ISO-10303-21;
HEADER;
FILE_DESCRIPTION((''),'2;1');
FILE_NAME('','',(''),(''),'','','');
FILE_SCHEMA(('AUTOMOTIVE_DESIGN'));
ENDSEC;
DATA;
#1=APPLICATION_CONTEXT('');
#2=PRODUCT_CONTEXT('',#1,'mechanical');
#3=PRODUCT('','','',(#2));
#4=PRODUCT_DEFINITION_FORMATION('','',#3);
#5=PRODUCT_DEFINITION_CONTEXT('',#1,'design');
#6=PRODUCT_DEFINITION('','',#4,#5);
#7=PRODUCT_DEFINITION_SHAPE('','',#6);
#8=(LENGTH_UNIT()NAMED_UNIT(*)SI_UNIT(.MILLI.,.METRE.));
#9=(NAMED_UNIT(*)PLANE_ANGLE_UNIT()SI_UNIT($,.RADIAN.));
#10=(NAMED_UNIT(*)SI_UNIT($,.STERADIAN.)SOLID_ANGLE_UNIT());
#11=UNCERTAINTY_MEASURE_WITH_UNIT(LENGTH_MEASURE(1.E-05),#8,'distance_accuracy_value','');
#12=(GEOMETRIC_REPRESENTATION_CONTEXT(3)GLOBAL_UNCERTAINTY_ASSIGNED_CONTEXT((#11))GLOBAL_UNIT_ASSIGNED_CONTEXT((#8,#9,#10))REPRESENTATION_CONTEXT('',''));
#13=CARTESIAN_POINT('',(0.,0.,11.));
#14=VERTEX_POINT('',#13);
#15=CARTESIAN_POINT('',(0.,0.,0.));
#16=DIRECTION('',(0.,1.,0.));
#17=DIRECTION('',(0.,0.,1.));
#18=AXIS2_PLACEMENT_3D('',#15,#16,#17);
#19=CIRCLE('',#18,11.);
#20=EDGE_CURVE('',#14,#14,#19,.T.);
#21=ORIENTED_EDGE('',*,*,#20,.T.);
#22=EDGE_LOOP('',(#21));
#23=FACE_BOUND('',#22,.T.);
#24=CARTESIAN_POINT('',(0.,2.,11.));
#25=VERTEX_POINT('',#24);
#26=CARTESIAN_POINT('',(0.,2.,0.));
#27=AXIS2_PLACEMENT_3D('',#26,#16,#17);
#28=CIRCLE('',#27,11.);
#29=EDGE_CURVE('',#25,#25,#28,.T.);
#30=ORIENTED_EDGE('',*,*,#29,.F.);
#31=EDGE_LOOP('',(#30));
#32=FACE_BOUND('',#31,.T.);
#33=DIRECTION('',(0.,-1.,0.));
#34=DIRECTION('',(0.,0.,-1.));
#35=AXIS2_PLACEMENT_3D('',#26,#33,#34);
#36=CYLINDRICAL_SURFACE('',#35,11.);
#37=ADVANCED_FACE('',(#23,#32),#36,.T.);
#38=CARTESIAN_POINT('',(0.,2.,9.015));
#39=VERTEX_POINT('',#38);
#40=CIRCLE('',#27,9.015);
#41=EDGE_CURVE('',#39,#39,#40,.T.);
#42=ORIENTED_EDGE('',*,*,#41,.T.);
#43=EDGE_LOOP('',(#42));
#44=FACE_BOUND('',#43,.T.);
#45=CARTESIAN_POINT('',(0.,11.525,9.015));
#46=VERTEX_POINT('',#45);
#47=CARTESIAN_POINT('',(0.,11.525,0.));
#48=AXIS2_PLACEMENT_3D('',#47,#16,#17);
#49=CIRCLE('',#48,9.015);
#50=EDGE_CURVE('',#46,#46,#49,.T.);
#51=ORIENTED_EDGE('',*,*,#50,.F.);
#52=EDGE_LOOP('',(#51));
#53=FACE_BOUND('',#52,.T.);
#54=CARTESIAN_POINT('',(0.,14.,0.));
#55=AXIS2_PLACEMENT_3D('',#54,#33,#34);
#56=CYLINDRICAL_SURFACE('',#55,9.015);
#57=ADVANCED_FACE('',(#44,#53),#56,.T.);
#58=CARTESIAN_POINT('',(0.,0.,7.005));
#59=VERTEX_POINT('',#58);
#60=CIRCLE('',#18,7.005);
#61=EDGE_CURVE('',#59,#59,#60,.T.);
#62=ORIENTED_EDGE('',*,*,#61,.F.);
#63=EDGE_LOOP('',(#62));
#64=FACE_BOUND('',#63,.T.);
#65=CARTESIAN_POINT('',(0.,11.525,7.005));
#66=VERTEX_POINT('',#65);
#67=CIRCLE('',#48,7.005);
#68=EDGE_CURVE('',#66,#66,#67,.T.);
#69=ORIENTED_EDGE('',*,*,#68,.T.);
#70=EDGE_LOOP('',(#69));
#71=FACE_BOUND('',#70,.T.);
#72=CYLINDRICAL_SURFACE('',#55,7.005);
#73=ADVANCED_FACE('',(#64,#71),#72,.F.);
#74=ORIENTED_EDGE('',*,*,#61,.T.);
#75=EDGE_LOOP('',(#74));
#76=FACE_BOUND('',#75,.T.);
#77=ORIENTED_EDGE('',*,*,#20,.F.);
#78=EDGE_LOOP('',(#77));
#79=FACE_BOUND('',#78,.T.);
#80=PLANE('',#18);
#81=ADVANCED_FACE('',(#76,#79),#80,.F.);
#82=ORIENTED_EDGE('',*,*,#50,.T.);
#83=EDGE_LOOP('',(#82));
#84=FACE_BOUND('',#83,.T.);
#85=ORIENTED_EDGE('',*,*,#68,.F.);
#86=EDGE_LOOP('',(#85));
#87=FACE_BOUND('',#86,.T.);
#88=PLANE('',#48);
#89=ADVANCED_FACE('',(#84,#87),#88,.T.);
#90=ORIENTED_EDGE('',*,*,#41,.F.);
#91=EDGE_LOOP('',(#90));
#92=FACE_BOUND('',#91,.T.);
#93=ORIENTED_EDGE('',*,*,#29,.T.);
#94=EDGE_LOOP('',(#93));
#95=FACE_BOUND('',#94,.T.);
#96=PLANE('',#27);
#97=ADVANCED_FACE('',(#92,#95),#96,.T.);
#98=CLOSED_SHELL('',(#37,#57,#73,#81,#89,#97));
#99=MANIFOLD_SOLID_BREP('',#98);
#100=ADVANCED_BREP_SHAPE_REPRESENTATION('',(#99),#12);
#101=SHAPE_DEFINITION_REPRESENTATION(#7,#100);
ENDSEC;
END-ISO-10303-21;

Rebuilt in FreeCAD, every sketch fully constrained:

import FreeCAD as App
import Part
import Sketcher
from FreeCAD import Vector
Q = App.Units.Quantity

doc = App.newDocument("Part")
body = doc.addObject("PartDesign::Body", "Body")

# Sketch on XZ plane
sketch1 = body.newObject("Sketcher::SketchObject", "Sketch")
sketch1.AttachmentSupport = (doc.getObject("XZ_Plane"), [""])
sketch1.MapMode = "FlatFace"
sketch1.addGeometry([
    Part.Circle(Vector(0, 0, 0), Vector(0, 0, 1), 9.015),
    Part.Circle(Vector(0, 0, 0), Vector(0, 0, 1), 7.005),
], False)
sketch1.addConstraint([
    Sketcher.Constraint("Coincident", 0, 3, -1, 1),
    Sketcher.Constraint("Coincident", 1, 3, -1, 1),
    Sketcher.Constraint("Diameter", 0, Q("18.03 mm")),
    Sketcher.Constraint("Diameter", 1, Q("14.01 mm")),
])
pad1 = body.newObject("PartDesign::Pad", "Pad")
pad1.Profile = sketch1
pad1.Length = 14
pad1.Reversed = True

# Sketch on XZ plane
sketch2 = body.newObject("Sketcher::SketchObject", "Sketch001")
sketch2.AttachmentSupport = (doc.getObject("XZ_Plane"), [""])
sketch2.MapMode = "FlatFace"
sketch2.addGeometry([
    Part.Circle(Vector(0, 0, 0), Vector(0, 0, 1), 11),
    Part.Circle(Vector(0, 0, 0), Vector(0, 0, 1), 9.015),
], False)
sketch2.addConstraint([
    Sketcher.Constraint("Coincident", 0, 3, -1, 1),
    Sketcher.Constraint("Coincident", 1, 3, -1, 1),
    Sketcher.Constraint("Diameter", 0, Q("22 mm")),
    Sketcher.Constraint("Diameter", 1, Q("18.03 mm")),
])
pad2 = body.newObject("PartDesign::Pad", "Pad001")
pad2.Profile = sketch2
pad2.Length = 2
pad2.Reversed = True

# Sketch on XZ plane
sketch3 = body.newObject("Sketcher::SketchObject", "Sketch002")
sketch3.AttachmentSupport = (doc.getObject("XZ_Plane"), [""])
sketch3.MapMode = "FlatFace"
sketch3.AttachmentOffset = App.Placement(Vector(0, 0, -14), App.Rotation())
sketch3.addGeometry(Part.Circle(Vector(0, 0, 0), Vector(0, 0, 1), 9.015), False)
sketch3.addConstraint([
    Sketcher.Constraint("Coincident", 0, 3, -1, 1),
    Sketcher.Constraint("Diameter", 0, Q("18.03 mm")),
])
pocket1 = body.newObject("PartDesign::Pocket", "Pocket")
pocket1.Profile = sketch3
pocket1.Length = 2.475
pocket1.Reversed = True

doc.recompute()
